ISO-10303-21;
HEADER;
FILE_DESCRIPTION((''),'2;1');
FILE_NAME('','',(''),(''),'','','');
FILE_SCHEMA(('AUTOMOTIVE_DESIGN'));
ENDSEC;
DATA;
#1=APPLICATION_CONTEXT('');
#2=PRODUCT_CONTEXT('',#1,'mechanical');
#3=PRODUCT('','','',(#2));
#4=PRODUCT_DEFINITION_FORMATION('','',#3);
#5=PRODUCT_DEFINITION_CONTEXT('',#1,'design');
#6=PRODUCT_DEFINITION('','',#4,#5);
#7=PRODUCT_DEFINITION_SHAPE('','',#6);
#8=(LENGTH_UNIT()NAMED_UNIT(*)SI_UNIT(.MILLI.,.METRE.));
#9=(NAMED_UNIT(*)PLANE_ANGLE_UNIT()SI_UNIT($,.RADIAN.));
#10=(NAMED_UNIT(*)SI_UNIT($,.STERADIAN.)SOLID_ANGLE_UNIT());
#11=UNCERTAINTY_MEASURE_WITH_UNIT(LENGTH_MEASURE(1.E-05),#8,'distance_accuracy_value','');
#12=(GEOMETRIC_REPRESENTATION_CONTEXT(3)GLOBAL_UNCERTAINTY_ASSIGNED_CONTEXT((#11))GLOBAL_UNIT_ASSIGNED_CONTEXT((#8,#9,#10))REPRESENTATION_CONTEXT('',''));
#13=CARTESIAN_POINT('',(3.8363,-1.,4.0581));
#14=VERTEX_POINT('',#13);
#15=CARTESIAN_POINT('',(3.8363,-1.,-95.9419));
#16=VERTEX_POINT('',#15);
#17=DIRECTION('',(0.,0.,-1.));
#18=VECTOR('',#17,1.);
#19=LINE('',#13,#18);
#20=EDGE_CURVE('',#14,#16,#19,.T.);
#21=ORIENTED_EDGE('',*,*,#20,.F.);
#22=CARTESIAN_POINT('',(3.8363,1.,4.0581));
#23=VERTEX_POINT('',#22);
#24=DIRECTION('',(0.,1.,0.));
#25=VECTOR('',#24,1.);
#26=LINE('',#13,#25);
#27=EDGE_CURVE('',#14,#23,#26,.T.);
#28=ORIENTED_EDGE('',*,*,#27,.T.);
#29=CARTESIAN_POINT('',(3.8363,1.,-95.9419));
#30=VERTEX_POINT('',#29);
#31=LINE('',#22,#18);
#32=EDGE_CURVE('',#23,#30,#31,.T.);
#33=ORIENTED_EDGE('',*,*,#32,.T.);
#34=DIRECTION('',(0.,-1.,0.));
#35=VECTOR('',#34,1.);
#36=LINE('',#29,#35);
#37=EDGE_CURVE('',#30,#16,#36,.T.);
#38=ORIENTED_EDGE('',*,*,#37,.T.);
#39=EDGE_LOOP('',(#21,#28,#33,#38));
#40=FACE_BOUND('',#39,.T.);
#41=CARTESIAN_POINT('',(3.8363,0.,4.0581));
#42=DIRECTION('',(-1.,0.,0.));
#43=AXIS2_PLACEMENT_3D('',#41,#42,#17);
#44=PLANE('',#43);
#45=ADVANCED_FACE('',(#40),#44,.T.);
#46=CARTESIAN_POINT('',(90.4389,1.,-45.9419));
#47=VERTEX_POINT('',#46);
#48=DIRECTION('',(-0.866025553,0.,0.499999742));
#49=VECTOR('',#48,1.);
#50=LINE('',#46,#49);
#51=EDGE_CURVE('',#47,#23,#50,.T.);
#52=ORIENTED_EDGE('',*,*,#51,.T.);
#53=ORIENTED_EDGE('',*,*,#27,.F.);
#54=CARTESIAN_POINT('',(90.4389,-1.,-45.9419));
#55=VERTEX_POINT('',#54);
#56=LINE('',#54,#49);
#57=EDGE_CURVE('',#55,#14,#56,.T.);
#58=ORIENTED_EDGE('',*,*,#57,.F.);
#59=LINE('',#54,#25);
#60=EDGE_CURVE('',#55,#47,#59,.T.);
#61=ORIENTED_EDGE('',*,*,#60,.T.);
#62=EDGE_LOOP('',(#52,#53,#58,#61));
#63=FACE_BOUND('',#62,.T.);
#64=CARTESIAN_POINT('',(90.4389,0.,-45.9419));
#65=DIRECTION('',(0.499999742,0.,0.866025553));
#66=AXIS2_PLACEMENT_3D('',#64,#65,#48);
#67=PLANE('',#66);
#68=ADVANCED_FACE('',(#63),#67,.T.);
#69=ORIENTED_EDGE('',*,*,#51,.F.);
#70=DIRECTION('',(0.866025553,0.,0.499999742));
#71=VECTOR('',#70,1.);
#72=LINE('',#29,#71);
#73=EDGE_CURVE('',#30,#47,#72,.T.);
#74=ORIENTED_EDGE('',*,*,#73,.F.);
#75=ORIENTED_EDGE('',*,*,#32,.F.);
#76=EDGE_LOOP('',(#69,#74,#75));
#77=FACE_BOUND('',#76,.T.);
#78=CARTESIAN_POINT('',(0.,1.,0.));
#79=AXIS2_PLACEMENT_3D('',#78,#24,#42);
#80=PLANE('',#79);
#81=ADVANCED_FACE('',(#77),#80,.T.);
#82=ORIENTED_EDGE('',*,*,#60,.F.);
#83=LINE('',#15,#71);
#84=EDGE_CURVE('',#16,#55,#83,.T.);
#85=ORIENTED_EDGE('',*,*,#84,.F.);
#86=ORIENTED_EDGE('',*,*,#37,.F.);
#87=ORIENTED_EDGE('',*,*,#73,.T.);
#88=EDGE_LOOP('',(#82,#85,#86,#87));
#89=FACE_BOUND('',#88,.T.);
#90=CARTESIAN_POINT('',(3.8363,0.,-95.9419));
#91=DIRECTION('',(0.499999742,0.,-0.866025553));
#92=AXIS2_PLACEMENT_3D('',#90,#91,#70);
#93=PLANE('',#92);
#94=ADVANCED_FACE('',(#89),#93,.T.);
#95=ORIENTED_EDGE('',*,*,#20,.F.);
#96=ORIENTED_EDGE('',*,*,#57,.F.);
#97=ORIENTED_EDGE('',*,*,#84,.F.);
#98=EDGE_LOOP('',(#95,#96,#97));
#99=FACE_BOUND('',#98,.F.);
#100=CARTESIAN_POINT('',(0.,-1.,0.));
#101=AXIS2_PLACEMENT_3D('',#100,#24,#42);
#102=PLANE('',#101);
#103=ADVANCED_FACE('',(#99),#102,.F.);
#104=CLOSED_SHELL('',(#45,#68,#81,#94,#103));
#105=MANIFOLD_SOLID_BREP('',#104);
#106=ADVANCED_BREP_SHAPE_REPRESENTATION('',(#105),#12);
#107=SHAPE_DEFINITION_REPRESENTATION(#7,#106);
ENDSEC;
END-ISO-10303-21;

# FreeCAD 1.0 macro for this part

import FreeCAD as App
import Part
import Sketcher
from FreeCAD import Vector
Q = App.Units.Quantity


def add_polygon(sketch, points):
    """Adds a closed chain of lines whose ends are joined by coincident constraints."""
    first, n = sketch.GeometryCount, len(points)
    for a, b in zip(points, points[1:] + points[:1]):
        sketch.addGeometry(Part.LineSegment(App.Vector(*a, 0), App.Vector(*b, 0)), False)
    for i in range(n):
        sketch.addConstraint(Sketcher.Constraint("Coincident", first + i, 2, first + (i + 1) % n, 1))

doc = App.newDocument("Part")
body = doc.addObject("PartDesign::Body", "Body")

# Sketch on XZ plane
sketch1 = body.newObject("Sketcher::SketchObject", "Sketch")
sketch1.AttachmentSupport = (doc.getObject("XZ_Plane"), [""])
sketch1.MapMode = "FlatFace"
add_polygon(sketch1, [(4, -96), (4, 4), (90, -46)])  # lines 0-2
sketch1.addConstraint(Sketcher.Constraint("Vertical", 0))
sketch1.addConstraint(Sketcher.Constraint("Equal", 1, 2))
sketch1.addConstraint(Sketcher.Constraint("DistanceY", 0, 1, 0, 2, Q("3.937 in")))
sketch1.addConstraint(Sketcher.Constraint("Distance", 1, Q("3.937 in")))
sketch1.addConstraint(Sketcher.Constraint("DistanceX", -1, 1, 0, 2, Q("3.8363 mm")))
sketch1.addConstraint(Sketcher.Constraint("DistanceY", -1, 1, 0, 2, Q("4.058 mm")))
pad1 = body.newObject("PartDesign::Pad", "Pad")
pad1.Profile = sketch1
pad1.Length = 2
pad1.Midplane = True

doc.recompute()
